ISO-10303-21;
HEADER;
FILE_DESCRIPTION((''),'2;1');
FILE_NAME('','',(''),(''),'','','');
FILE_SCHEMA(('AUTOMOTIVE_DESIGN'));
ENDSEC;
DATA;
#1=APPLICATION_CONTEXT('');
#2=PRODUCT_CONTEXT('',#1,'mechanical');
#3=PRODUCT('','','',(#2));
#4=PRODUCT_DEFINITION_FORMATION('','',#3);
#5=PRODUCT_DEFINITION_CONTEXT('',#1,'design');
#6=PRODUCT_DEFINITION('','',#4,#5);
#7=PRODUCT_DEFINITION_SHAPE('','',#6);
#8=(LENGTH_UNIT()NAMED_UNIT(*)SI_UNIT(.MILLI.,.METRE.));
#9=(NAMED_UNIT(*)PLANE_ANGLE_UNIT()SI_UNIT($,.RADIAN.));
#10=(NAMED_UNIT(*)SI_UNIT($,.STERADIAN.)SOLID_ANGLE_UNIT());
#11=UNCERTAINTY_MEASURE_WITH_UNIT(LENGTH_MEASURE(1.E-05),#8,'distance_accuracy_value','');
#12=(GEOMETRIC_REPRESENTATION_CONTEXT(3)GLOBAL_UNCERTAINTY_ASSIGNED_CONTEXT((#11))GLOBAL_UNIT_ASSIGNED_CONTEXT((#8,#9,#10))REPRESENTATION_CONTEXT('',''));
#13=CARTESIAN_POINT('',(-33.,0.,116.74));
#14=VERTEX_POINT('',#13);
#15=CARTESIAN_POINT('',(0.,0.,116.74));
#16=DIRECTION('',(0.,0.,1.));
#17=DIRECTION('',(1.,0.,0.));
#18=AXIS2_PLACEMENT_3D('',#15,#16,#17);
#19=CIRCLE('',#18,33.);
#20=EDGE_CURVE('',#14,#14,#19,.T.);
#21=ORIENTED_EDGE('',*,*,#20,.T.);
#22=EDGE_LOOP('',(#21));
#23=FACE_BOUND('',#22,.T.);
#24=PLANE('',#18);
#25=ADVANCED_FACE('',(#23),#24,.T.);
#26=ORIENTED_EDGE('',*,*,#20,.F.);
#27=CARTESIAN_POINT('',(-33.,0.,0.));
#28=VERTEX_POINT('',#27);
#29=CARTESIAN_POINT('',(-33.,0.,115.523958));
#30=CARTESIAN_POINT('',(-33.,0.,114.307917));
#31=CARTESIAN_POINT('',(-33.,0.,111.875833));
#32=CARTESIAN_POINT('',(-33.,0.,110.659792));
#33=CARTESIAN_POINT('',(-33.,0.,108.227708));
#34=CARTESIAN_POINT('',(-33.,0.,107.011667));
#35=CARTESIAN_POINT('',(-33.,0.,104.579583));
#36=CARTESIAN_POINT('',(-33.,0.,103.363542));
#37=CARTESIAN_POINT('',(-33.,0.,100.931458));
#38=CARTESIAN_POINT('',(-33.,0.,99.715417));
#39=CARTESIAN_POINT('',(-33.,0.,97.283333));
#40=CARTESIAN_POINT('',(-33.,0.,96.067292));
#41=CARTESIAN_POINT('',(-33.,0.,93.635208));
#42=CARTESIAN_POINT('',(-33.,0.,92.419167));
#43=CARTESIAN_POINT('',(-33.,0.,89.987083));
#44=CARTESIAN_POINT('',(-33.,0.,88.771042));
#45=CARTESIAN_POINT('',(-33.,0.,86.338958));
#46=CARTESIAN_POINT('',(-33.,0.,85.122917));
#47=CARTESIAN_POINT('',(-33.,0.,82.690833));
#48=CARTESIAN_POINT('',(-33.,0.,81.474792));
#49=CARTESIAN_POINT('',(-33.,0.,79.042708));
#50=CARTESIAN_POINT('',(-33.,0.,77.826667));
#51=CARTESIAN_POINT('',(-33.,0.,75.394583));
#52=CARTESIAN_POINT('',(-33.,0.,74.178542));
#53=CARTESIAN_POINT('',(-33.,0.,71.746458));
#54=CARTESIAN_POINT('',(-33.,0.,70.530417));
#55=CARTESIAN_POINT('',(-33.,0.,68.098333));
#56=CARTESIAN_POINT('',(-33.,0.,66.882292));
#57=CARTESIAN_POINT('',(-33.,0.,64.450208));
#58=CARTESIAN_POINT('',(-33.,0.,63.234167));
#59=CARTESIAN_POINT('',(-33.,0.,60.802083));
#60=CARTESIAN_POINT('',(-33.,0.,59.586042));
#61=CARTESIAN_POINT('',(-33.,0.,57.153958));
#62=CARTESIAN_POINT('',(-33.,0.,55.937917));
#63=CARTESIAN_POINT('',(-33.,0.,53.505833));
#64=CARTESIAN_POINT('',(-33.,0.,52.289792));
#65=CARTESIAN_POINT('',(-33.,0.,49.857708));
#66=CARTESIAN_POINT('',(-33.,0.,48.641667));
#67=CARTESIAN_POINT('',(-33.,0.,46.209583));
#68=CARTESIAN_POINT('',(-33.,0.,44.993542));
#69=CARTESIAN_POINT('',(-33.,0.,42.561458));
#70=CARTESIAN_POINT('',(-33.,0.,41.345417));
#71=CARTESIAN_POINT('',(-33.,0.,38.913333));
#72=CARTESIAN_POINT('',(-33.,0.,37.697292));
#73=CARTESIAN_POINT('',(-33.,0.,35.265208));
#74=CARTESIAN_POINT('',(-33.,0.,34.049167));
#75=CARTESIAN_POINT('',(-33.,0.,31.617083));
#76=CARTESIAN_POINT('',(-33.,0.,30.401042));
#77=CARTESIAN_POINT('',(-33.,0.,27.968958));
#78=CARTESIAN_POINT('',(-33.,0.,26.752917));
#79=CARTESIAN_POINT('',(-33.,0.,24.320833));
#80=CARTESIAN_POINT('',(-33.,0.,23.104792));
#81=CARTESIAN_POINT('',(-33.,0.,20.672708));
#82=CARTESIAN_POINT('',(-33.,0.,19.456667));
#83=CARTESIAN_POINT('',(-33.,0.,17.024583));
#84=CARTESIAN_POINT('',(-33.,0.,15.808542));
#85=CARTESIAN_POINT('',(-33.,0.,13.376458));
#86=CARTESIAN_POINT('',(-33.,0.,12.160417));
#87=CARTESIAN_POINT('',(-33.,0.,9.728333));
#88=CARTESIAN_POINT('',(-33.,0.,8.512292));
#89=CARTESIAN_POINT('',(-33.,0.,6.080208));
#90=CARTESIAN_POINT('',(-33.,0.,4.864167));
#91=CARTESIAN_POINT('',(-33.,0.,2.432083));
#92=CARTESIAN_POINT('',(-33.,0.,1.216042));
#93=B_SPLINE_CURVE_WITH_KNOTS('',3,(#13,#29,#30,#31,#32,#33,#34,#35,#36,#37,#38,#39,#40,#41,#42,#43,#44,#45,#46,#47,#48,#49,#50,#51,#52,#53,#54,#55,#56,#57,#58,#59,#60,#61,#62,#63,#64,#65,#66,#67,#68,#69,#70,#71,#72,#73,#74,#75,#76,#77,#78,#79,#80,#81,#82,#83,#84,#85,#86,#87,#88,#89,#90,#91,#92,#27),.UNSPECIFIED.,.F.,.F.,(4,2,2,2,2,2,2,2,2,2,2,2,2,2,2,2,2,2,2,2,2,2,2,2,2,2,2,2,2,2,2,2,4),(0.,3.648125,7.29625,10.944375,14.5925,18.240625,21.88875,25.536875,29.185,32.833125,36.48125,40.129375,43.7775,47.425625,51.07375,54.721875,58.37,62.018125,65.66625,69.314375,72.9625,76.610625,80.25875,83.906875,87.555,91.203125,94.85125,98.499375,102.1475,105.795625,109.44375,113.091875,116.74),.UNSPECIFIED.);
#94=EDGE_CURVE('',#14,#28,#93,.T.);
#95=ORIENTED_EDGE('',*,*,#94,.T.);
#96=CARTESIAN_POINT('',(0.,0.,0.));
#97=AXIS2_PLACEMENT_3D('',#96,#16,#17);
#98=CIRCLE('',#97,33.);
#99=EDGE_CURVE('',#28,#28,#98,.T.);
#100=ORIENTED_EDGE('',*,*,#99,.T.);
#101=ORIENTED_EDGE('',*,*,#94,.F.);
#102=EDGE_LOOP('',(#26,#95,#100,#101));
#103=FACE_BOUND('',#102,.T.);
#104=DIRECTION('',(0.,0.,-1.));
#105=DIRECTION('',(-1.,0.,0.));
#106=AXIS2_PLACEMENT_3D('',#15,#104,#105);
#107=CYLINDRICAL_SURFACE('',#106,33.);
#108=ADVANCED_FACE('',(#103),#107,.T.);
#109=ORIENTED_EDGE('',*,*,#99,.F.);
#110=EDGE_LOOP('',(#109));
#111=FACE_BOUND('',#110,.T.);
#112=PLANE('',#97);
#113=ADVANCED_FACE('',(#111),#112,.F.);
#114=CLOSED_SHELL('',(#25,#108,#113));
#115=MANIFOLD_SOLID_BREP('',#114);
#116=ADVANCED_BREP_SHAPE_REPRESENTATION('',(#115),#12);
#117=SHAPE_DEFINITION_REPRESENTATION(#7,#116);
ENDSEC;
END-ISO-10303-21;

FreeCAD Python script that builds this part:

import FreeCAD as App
import Part
import Sketcher

V = App.Vector
Q = App.Units.Quantity

doc = App.newDocument("Part")
params = doc.addObject("Spreadsheet::Sheet", "Params")
for row, (alias, value) in enumerate([
    ("sketch1_diameter", "66 mm"),
    ("pad1_length", "116.74 mm"),
], start=1):
    params.set(f"A{row}", alias)
    params.set(f"B{row}", "=" + value)
    params.setAlias(f"B{row}", alias)

body = doc.addObject("PartDesign::Body", "Body")

# Sketch on XY plane
sketch1 = body.newObject("Sketcher::SketchObject", "Sketch")
sketch1.AttachmentSupport = (doc.getObject("XY_Plane"), [""])
sketch1.MapMode = "FlatFace"
sketch1.addGeometry(Part.Circle(V(0, 0, 0), V(0, 0, 1), 33), False)
sketch1.addConstraint(Sketcher.Constraint("Coincident", 0, 3, -1, 1))
sketch1.addConstraint(Sketcher.Constraint("Diameter", 0, Q("66 mm")))
sketch1.setExpression("Constraints[1]", "Params.sketch1_diameter")
pad1 = body.newObject("PartDesign::Pad", "Pad")
pad1.Profile = sketch1
pad1.setExpression("Length", "Params.pad1_length")

doc.recompute()
